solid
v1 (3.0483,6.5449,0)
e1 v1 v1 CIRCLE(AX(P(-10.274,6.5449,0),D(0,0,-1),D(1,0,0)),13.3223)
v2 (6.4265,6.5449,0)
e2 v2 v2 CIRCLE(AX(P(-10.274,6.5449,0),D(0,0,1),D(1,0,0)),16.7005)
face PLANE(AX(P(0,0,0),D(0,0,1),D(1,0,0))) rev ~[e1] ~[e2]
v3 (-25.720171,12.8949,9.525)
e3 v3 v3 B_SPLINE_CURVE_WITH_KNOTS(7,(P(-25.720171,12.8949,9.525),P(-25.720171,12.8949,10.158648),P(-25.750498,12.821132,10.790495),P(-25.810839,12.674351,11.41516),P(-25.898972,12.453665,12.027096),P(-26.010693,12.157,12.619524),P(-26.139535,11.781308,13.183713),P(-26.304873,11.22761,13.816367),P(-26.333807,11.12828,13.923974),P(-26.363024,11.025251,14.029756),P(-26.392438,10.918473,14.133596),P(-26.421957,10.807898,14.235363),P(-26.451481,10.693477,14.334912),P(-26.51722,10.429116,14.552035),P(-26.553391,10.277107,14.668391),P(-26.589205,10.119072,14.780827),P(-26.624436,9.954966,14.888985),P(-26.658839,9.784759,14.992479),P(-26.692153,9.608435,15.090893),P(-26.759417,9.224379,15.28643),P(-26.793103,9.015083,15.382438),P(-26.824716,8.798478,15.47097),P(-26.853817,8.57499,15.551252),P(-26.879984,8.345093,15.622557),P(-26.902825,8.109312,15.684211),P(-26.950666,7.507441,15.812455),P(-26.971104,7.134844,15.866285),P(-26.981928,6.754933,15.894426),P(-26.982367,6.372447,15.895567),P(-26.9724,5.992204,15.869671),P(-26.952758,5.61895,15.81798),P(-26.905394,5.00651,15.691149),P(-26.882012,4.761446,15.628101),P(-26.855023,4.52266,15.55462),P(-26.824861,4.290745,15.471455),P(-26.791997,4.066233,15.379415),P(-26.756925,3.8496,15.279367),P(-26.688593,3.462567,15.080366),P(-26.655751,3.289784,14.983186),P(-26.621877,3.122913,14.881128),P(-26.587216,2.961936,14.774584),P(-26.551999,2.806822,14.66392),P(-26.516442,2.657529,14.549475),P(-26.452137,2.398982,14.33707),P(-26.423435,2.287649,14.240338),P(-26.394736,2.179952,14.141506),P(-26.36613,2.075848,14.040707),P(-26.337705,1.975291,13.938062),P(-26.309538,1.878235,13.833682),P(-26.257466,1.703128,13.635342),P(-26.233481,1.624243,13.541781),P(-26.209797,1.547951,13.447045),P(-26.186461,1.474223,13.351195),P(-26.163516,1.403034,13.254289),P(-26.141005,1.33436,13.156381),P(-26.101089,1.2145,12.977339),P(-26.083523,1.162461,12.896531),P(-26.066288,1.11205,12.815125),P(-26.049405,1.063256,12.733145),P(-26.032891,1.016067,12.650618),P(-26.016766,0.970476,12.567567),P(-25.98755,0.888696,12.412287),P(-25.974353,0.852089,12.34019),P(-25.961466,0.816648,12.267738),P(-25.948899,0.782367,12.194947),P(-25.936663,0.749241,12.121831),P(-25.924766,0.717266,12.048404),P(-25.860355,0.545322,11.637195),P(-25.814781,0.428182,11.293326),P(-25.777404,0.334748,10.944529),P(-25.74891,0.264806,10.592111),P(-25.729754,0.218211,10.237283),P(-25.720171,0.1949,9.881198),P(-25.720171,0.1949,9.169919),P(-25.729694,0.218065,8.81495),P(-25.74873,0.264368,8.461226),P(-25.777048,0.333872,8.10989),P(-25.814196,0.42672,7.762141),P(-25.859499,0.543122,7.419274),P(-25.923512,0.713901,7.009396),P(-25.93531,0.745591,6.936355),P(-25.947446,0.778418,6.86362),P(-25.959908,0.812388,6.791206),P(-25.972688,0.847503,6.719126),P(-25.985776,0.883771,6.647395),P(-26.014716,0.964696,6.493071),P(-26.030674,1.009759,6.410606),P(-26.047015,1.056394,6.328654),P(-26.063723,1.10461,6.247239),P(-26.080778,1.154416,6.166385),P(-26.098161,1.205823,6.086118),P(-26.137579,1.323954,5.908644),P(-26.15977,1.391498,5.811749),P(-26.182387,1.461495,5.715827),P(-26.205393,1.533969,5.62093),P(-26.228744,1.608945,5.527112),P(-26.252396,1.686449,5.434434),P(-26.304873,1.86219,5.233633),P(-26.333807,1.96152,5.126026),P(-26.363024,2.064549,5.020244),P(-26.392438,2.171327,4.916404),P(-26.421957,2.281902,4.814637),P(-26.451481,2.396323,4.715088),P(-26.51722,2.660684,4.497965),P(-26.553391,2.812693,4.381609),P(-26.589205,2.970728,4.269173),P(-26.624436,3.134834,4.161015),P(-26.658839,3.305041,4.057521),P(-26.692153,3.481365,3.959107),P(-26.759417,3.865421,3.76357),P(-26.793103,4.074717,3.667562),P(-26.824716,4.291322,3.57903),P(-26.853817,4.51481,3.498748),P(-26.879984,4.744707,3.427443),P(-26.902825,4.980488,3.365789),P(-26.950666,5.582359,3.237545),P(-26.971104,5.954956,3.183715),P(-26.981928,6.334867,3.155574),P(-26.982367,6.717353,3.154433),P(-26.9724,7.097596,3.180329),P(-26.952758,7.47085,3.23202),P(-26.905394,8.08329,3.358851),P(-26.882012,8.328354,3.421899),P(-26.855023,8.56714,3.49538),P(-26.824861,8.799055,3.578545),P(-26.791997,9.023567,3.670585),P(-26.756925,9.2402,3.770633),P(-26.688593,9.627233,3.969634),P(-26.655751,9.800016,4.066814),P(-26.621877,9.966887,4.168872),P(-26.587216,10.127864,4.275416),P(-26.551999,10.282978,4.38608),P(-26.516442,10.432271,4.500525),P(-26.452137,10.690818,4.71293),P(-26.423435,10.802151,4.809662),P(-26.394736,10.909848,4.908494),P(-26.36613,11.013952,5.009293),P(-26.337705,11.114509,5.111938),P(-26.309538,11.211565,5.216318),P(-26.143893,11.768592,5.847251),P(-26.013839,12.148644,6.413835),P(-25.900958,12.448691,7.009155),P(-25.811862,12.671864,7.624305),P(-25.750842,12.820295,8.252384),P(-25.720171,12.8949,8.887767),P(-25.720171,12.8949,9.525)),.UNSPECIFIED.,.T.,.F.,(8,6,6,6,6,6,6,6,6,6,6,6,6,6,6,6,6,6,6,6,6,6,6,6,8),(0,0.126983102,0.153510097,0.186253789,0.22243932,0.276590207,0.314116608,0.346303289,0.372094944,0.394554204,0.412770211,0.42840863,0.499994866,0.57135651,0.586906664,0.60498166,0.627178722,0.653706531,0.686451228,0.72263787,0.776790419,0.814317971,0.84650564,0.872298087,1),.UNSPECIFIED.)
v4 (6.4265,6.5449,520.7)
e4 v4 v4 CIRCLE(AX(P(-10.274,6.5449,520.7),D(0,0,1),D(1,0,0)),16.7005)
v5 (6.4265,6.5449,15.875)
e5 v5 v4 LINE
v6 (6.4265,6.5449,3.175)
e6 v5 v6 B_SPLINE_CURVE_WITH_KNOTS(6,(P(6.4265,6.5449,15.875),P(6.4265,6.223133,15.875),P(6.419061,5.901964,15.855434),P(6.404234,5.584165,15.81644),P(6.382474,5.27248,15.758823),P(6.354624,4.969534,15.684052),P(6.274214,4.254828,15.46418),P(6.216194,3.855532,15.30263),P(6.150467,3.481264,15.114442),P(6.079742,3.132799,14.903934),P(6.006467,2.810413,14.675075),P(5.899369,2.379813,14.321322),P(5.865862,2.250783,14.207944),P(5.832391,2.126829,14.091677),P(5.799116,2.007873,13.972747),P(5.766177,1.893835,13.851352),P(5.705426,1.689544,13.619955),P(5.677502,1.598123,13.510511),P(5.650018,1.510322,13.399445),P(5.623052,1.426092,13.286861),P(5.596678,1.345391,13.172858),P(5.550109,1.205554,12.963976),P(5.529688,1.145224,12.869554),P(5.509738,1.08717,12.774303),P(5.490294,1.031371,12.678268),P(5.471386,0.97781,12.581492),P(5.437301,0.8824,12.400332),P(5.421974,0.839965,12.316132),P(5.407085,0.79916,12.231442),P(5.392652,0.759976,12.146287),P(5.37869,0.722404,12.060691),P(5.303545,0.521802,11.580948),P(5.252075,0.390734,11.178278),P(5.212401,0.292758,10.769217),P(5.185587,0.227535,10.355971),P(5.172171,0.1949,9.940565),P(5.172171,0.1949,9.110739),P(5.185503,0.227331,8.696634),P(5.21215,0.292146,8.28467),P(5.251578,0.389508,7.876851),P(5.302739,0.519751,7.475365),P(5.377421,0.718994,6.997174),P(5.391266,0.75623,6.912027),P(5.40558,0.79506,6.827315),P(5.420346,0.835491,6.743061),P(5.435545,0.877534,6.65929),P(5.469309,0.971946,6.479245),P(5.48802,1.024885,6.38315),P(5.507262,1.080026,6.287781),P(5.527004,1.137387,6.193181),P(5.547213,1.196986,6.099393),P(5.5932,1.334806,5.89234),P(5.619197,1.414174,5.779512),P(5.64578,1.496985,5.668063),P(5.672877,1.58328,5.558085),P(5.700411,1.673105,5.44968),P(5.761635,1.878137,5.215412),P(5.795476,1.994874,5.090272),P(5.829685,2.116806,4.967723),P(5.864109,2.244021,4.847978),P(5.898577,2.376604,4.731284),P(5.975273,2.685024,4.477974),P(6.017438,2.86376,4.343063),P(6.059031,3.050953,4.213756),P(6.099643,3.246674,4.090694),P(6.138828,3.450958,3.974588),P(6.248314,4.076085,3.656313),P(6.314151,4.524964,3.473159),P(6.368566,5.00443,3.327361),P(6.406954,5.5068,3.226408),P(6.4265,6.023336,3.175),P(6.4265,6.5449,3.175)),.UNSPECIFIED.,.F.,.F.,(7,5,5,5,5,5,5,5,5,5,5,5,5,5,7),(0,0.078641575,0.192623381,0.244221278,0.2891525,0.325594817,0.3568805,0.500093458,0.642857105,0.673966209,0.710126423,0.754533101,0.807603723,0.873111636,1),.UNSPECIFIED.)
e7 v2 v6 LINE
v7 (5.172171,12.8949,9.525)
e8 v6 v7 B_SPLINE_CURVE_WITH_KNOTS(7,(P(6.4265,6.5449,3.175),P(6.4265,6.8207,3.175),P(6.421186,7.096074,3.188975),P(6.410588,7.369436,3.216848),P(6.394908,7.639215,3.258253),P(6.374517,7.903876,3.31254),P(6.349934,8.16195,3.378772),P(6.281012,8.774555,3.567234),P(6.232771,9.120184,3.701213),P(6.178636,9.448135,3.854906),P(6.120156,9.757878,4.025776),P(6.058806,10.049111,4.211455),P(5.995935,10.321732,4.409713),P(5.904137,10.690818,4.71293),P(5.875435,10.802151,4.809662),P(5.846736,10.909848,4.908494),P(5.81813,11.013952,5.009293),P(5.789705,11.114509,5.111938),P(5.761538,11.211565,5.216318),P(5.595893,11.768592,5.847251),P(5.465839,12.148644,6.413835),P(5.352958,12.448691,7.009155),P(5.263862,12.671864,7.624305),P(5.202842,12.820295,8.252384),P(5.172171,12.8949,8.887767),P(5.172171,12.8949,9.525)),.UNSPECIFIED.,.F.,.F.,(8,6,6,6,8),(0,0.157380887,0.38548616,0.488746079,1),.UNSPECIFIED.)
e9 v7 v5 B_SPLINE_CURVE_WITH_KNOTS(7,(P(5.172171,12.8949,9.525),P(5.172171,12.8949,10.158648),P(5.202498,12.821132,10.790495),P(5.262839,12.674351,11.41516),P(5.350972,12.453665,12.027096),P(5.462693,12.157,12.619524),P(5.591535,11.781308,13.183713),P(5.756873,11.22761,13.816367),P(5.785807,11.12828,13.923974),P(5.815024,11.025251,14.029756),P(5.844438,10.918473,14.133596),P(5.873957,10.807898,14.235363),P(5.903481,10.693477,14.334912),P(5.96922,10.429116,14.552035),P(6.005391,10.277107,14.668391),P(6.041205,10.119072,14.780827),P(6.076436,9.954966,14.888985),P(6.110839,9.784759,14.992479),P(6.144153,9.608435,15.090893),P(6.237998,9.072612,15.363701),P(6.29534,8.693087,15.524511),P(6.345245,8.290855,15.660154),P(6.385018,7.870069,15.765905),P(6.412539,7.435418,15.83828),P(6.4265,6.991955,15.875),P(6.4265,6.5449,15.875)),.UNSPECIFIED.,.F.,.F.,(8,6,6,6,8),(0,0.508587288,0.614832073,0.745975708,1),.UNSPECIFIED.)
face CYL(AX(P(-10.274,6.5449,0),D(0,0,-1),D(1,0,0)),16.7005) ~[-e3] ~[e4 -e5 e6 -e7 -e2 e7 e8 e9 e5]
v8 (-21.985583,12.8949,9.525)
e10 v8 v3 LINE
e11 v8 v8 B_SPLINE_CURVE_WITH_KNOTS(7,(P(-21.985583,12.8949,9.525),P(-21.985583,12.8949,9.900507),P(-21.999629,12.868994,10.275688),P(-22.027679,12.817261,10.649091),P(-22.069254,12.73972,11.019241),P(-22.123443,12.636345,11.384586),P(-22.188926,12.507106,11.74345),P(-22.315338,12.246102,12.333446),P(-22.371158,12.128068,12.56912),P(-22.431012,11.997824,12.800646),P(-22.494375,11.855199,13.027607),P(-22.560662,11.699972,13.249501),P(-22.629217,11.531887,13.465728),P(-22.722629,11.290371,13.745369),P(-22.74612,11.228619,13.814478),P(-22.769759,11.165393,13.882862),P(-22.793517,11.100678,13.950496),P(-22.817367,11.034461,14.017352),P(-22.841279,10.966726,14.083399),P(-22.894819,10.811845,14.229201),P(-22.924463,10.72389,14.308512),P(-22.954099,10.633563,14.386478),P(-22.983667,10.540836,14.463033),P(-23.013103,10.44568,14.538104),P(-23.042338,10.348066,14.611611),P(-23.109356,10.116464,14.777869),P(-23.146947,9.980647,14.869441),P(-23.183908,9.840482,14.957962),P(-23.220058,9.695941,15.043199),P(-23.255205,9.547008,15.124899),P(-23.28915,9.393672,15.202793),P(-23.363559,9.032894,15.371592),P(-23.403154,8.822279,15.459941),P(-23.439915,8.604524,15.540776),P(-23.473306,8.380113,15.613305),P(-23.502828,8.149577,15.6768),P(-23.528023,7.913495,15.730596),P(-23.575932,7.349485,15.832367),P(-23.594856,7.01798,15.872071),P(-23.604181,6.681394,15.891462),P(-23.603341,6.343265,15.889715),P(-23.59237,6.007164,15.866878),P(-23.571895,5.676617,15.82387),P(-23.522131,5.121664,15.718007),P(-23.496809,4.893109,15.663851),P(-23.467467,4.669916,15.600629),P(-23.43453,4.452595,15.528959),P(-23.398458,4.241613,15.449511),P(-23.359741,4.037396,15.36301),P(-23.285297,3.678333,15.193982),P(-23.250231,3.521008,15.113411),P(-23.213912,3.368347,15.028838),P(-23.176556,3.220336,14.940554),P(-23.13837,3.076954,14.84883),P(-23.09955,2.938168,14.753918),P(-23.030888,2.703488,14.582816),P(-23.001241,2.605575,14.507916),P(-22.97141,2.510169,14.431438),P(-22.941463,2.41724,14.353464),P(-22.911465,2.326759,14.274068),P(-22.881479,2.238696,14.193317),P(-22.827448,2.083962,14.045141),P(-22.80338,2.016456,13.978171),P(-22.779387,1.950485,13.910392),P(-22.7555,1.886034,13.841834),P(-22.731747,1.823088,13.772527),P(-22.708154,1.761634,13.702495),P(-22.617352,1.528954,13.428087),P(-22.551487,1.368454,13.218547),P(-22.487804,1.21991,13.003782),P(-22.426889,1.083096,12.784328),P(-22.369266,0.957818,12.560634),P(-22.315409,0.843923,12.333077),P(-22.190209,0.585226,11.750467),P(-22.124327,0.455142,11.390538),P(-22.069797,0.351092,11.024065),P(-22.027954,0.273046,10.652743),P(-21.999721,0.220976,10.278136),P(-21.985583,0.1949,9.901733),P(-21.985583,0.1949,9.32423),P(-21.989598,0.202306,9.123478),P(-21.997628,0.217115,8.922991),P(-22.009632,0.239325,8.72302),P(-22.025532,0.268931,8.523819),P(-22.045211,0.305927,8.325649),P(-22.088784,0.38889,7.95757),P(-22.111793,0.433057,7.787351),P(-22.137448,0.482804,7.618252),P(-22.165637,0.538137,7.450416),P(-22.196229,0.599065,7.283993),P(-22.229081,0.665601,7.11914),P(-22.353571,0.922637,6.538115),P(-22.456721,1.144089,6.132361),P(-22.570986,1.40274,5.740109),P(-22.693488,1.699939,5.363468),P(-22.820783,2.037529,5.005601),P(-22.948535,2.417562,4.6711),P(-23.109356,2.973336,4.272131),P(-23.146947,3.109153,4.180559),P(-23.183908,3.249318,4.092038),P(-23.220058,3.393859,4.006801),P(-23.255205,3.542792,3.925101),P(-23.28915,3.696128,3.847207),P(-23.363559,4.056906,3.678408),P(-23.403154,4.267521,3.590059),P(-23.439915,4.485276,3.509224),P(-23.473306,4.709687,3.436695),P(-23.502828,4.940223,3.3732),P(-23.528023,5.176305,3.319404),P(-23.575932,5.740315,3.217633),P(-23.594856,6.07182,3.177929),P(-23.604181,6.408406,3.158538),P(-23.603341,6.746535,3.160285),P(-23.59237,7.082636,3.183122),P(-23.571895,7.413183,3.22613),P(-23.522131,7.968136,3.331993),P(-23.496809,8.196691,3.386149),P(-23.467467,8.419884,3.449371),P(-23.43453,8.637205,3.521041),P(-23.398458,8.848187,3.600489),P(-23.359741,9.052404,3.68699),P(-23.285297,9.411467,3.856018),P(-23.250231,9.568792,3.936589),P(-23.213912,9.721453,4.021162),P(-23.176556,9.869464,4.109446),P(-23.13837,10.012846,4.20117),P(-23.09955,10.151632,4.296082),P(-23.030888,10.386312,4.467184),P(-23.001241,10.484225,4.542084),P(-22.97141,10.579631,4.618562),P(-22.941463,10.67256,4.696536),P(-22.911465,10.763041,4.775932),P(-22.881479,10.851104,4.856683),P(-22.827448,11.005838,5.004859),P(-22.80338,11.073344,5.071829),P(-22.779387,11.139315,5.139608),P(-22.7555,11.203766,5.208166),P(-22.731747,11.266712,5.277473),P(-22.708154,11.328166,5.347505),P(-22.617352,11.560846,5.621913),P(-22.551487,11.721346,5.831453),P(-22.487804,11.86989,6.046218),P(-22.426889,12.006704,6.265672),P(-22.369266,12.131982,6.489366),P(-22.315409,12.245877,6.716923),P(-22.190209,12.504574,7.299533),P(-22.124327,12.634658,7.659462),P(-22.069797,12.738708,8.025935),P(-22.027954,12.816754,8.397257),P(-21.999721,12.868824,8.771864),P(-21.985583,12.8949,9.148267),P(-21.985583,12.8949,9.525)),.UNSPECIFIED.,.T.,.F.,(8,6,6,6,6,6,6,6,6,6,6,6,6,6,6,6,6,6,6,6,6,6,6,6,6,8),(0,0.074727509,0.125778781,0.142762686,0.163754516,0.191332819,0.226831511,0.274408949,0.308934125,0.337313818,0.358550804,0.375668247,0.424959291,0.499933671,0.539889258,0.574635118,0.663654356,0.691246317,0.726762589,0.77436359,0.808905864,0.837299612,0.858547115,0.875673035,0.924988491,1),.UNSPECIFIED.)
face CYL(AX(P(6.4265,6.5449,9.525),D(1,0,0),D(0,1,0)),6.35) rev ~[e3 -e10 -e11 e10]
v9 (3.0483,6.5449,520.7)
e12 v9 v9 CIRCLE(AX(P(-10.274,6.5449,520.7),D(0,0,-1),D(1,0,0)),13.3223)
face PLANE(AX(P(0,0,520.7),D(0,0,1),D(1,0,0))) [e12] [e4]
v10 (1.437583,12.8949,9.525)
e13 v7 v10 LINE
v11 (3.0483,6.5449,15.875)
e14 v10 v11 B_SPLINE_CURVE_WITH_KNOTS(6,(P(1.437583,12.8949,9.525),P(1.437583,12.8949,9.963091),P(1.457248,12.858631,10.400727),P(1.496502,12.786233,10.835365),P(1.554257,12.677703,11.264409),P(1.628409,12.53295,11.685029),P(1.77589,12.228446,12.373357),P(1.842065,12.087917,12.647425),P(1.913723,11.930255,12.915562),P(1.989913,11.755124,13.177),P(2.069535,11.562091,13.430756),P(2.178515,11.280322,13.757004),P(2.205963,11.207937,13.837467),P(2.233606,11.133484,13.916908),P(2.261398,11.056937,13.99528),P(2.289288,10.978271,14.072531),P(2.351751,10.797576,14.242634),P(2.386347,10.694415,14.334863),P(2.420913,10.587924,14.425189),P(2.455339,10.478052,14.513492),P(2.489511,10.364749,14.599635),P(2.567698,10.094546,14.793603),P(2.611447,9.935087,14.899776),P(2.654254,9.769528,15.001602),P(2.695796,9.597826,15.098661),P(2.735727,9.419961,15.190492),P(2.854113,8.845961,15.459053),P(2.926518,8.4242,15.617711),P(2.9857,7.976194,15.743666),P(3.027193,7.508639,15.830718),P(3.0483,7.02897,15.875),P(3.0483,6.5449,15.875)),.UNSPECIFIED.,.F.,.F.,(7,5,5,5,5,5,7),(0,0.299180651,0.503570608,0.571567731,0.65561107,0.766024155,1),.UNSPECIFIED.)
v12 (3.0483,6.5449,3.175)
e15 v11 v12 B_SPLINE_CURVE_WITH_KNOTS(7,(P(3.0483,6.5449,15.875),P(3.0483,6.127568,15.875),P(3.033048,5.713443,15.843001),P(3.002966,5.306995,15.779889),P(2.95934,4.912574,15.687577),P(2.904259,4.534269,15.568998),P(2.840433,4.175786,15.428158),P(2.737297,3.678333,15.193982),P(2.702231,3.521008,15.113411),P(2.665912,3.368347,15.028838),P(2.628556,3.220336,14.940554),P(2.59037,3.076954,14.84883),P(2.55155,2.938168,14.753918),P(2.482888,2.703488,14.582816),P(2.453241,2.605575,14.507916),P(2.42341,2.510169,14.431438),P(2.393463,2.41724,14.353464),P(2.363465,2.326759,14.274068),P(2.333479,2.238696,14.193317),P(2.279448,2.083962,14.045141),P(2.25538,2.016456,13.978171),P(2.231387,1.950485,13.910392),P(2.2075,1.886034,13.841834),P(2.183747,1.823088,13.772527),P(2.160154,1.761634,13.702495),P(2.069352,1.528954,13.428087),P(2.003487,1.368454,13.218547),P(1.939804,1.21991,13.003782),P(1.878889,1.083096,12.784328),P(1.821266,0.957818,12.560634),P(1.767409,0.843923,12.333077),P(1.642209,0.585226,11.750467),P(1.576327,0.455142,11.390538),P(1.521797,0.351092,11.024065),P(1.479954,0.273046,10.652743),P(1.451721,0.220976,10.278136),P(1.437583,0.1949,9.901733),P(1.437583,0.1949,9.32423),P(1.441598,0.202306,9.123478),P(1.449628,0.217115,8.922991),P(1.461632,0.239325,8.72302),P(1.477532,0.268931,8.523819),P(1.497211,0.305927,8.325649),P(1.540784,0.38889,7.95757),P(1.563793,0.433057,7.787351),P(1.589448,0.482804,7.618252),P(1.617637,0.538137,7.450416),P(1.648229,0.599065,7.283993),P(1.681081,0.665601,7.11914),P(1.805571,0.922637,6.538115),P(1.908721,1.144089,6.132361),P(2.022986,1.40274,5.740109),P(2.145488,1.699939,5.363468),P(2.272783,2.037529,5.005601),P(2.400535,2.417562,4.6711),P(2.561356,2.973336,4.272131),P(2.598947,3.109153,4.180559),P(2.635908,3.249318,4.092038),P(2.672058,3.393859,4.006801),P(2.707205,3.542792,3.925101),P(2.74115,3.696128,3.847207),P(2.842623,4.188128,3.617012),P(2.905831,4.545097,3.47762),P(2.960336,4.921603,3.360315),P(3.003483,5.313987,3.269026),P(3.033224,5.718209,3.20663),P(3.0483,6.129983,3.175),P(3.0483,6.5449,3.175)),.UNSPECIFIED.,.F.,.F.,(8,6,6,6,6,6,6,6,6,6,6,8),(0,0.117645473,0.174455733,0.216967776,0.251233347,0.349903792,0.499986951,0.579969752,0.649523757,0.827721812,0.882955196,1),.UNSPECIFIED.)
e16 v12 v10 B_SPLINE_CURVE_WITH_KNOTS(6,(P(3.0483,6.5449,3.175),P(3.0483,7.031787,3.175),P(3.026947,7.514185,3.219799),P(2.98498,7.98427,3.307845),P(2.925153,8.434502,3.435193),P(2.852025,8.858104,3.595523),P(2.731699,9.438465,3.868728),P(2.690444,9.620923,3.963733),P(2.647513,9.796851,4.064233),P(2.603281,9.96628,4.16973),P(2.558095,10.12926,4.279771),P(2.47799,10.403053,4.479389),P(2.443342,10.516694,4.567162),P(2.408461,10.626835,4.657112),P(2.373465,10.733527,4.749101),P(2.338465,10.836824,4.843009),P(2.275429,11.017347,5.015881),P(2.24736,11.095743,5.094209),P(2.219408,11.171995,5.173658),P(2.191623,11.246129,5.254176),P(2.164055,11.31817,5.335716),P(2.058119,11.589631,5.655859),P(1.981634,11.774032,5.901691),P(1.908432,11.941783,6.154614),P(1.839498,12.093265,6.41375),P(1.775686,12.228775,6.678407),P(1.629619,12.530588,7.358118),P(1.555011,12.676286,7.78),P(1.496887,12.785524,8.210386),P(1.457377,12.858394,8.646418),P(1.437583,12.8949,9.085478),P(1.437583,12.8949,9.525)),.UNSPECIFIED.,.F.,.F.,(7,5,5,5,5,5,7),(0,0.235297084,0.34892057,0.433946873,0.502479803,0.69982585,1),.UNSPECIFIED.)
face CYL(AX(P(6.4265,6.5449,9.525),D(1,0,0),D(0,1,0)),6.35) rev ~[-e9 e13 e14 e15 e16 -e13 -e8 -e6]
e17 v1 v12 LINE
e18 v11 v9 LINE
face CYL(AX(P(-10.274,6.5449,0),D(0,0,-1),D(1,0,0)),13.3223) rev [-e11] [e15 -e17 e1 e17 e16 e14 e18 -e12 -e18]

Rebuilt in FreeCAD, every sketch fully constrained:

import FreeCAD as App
import Part
import Sketcher
from FreeCAD import Vector
Q = App.Units.Quantity


def faces_at(feature, points):
    """Names of the faces that lie closest to the given points."""
    faces = feature.Shape.Faces
    near = lambda p: min(range(len(faces)), key=lambda i: faces[i].distToShape(Part.Vertex(*p))[0])
    return sorted({f"Face{near(p) + 1}" for p in points})

doc = App.newDocument("Part")
body = doc.addObject("PartDesign::Body", "Body")

sketch1 = body.newObject("Sketcher::SketchObject", "Sketch")
sketch1.AttachmentSupport = (doc.getObject("XY_Plane"), [""])
sketch1.MapMode = "FlatFace"
sketch1.addGeometry(Part.Circle(Vector(-10, 7, 0), Vector(0, 0, 1), 17), False)
sketch1.addConstraint(Sketcher.Constraint("Diameter", 0, Q("1.315 in")))
sketch1.addConstraint(Sketcher.Constraint("DistanceX", 0, 3, -1, 1, Q("0.4045 in")))
sketch1.addConstraint(Sketcher.Constraint("DistanceY", -1, 1, 0, 3, Q("6.545 mm")))
pad1 = body.newObject("PartDesign::Pad", "Pad")
pad1.Profile = sketch1
pad1.Length = Q("20.5 in")
doc.recompute()

thickness = body.newObject("PartDesign::Thickness", "Thickness")
thickness.Base = (pad1, faces_at(pad1, [(-15.041, 5.29, 0), (-15.041, 5.29, 520.7)]))
thickness.Value = Q("0.133 in")
thickness.Reversed = True
thickness.Join = "Intersection"

sketch2 = body.newObject("Sketcher::SketchObject", "Sketch001")
sketch2.AttachmentSupport = (doc.getObject("YZ_Plane"), [""])
sketch2.MapMode = "FlatFace"
sketch2.AttachmentOffset = App.Placement(Vector(0, 0, 0.2530118 * 25.4), App.Rotation())
sketch2.addGeometry(Part.Circle(Vector(7, 10, 0), Vector(0, 0, 1), 6), False)
sketch2.addConstraint(Sketcher.Constraint("Diameter", 0, Q("0.5 in")))
sketch2.addConstraint(Sketcher.Constraint("DistanceY", -1, 1, 0, 3, Q("0.375 in")))
sketch2.addConstraint(Sketcher.Constraint("DistanceX", -1, 1, 0, 3, Q("6.545 mm")))
pocket1 = body.newObject("PartDesign::Pocket", "Pocket")
pocket1.Profile = sketch2
pocket1.Type = "ThroughAll"

doc.recompute()
